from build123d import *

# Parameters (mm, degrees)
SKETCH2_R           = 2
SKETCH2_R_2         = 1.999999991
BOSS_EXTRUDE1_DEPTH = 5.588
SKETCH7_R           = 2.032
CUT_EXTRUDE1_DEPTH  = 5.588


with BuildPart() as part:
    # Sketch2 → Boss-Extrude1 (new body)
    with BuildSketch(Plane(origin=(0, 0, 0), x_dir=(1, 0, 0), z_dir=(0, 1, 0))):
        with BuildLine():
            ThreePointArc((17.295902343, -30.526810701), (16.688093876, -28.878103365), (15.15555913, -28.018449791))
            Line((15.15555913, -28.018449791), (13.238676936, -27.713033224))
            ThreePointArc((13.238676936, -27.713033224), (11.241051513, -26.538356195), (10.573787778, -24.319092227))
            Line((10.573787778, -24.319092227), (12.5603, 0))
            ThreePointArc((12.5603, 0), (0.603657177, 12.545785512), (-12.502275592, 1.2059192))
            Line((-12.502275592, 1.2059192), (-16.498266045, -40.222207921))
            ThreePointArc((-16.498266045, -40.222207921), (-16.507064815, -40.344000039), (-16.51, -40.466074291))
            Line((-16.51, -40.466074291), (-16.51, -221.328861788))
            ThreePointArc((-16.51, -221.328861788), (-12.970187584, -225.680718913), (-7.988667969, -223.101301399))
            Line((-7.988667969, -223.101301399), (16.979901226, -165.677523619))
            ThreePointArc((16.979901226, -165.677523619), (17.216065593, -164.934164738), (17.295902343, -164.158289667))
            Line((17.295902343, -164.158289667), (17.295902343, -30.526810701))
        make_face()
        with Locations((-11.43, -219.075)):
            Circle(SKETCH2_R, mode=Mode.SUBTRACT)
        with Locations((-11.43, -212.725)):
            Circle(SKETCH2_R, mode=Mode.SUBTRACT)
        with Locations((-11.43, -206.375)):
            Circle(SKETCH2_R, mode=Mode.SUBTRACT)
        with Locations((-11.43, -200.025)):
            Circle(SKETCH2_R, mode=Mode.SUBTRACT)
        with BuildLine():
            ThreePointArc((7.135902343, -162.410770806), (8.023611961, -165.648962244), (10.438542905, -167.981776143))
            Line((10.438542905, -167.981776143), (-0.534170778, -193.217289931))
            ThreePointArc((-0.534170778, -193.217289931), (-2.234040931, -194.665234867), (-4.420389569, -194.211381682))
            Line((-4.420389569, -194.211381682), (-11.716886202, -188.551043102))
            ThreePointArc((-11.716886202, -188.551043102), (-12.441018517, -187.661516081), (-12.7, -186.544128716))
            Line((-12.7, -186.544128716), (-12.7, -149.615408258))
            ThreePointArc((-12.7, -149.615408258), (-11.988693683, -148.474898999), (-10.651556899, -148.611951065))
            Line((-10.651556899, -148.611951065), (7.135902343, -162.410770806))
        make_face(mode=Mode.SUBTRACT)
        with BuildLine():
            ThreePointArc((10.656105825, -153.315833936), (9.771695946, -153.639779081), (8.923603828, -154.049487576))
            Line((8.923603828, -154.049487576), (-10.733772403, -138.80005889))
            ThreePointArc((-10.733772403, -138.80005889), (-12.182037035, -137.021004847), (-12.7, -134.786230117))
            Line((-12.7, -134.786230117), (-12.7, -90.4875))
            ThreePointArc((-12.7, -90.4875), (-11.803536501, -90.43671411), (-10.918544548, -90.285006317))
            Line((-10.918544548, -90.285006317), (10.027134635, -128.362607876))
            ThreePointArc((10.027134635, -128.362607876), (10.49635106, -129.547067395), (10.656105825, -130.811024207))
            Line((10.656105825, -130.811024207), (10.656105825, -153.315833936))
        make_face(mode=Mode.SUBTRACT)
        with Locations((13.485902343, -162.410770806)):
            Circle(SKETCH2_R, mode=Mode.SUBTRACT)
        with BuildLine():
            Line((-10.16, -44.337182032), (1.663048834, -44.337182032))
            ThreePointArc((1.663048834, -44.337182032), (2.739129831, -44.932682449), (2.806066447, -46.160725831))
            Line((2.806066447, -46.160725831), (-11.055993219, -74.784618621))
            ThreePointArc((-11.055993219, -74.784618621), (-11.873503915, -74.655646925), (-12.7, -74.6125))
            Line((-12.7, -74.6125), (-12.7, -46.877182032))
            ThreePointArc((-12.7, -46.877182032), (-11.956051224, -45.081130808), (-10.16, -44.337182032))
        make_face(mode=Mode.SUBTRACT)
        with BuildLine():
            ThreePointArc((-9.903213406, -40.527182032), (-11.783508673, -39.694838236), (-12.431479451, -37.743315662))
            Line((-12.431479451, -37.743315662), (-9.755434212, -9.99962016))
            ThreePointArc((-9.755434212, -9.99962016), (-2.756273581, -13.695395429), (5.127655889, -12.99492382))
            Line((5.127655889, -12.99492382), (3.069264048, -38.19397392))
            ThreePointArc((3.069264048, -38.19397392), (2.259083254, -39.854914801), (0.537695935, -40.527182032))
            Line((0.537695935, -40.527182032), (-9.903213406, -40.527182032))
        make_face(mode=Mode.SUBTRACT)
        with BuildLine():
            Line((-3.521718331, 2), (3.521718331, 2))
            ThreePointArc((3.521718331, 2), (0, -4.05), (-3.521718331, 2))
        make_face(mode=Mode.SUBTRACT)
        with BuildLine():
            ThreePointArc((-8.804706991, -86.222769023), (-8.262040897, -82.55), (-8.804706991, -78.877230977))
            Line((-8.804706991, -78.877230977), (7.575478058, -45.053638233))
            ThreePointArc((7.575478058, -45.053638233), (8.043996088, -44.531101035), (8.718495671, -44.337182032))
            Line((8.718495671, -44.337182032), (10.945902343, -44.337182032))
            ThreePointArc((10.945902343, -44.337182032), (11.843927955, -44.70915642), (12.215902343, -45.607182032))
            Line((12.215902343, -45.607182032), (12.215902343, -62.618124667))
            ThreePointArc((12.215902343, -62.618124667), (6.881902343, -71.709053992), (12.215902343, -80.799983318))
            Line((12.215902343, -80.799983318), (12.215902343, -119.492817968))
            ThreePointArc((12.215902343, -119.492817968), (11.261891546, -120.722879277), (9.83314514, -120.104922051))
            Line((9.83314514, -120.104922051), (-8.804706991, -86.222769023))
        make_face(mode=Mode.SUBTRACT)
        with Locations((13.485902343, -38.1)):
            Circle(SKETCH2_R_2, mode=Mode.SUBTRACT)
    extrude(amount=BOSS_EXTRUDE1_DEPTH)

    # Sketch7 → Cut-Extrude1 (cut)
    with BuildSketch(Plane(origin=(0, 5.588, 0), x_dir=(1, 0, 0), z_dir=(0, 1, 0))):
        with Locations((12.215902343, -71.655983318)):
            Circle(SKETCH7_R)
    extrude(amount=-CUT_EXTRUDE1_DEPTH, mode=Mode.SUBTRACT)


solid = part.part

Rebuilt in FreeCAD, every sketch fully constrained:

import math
import FreeCAD as App
import Part
import Sketcher
Q = App.Units.Quantity

doc = App.newDocument("Part")
body = doc.addObject("PartDesign::Body", "Body")

sketch1 = body.newObject("Sketcher::SketchObject", "Sketch")
sketch1.AttachmentSupport = (doc.getObject("XZ_Plane"), [""])
sketch1.MapMode = "FlatFace"
sketch1.addGeometry(Part.ArcOfCircle(Part.Circle(App.Vector(14.76, 30.53, 0), App.Vector(0, 0, 1), 2.54), math.radians(-81), math.radians(0)), False)
sketch1.addGeometry(Part.LineSegment(App.Vector(15.16, 28.02, 0), App.Vector(13.24, 27.71, 0)), False)
sketch1.addGeometry(Part.ArcOfCircle(Part.Circle(App.Vector(13.74, 24.58, 0), App.Vector(0, 0, 1), 3.18), math.radians(99), math.radians(185)), False)
sketch1.addGeometry(Part.LineSegment(App.Vector(10.57, 24.32, 0), App.Vector(12.56, 0, 0)), False)
sketch1.addGeometry(Part.ArcOfCircle(Part.Circle(App.Vector(0, 0, 0), App.Vector(0, 0, 1), 12.56), math.radians(-174), math.radians(0)), False)
sketch1.addGeometry(Part.LineSegment(App.Vector(-12.5, -1.21, 0), App.Vector(-16.5, 40.22, 0)), False)
sketch1.addGeometry(Part.ArcOfCircle(Part.Circle(App.Vector(-13.97, 40.47, 0), App.Vector(0, 0, 1), 2.54), math.radians(-180), math.radians(-174.49)), False)
sketch1.addGeometry(Part.LineSegment(App.Vector(-16.51, 40.47, 0), App.Vector(-16.51, 221.33, 0)), False)
sketch1.addGeometry(Part.ArcOfCircle(Part.Circle(App.Vector(-12.06, 221.33, 0), App.Vector(0, 0, 1), 4.45), math.radians(23), math.radians(180)), False)
sketch1.addGeometry(Part.LineSegment(App.Vector(-7.99, 223.1, 0), App.Vector(16.98, 165.68, 0)), False)
sketch1.addGeometry(Part.ArcOfCircle(Part.Circle(App.Vector(13.49, 164.16, 0), App.Vector(0, 0, 1), 3.81), math.radians(0), math.radians(24)), False)
sketch1.addGeometry(Part.LineSegment(App.Vector(17.3, 164.16, 0), App.Vector(17.3, 30.53, 0)), False)
sketch1.addGeometry(Part.Circle(App.Vector(-11.43, 219.07, 0), App.Vector(0, 0, 1), 2), False)
sketch1.addGeometry(Part.Circle(App.Vector(-11.43, 212.72, 0), App.Vector(0, 0, 1), 2), False)
sketch1.addGeometry(Part.Circle(App.Vector(-11.43, 206.38, 0), App.Vector(0, 0, 1), 2), False)
sketch1.addGeometry(Part.Circle(App.Vector(-11.43, 200.03, 0), App.Vector(0, 0, 1), 2), False)
sketch1.addGeometry(Part.LineSegment(App.Vector(-10.65, 148.61, 0), App.Vector(7.14, 162.41, 0)), False)
sketch1.addGeometry(Part.ArcOfCircle(Part.Circle(App.Vector(13.49, 162.41, 0), App.Vector(0, 0, 1), 6.35), math.radians(119), math.radians(180)), False)
sketch1.addGeometry(Part.LineSegment(App.Vector(10.44, 167.98, 0), App.Vector(-0.53, 193.22, 0)), False)
sketch1.addGeometry(Part.ArcOfCircle(Part.Circle(App.Vector(-2.86, 192.2, 0), App.Vector(0, 0, 1), 2.54), math.radians(24), math.radians(128)), False)
sketch1.addGeometry(Part.LineSegment(App.Vector(-4.42, 194.21, 0), App.Vector(-11.72, 188.55, 0)), False)
sketch1.addGeometry(Part.ArcOfCircle(Part.Circle(App.Vector(-10.16, 186.54, 0), App.Vector(0, 0, 1), 2.54), math.radians(128), math.radians(180)), False)
sketch1.addGeometry(Part.LineSegment(App.Vector(-12.7, 186.54, 0), App.Vector(-12.7, 149.62, 0)), False)
sketch1.addGeometry(Part.ArcOfCircle(Part.Circle(App.Vector(-11.43, 149.62, 0), App.Vector(0, 0, 1), 1.27), math.radians(180), math.radians(308)), False)
sketch1.addGeometry(Part.LineSegment(App.Vector(10.66, 130.81, 0), App.Vector(10.66, 153.32, 0)), False)
sketch1.addGeometry(Part.ArcOfCircle(Part.Circle(App.Vector(13.49, 162.41, 0), App.Vector(0, 0, 1), 9.52), math.radians(-118.62), math.radians(-107.28)), False)
sketch1.addGeometry(Part.LineSegment(App.Vector(8.92, 154.05, 0), App.Vector(-10.73, 138.8, 0)), False)
sketch1.addGeometry(Part.ArcOfCircle(Part.Circle(App.Vector(-7.62, 134.79, 0), App.Vector(0, 0, 1), 5.08), math.radians(128), math.radians(180)), False)
sketch1.addGeometry(Part.LineSegment(App.Vector(-12.7, 134.79, 0), App.Vector(-12.7, 90.49, 0)), False)
sketch1.addGeometry(Part.ArcOfCircle(Part.Circle(App.Vector(-12.7, 82.55, 0), App.Vector(0, 0, 1), 7.94), math.radians(77.03), math.radians(90)), False)
sketch1.addGeometry(Part.LineSegment(App.Vector(-10.92, 90.29, 0), App.Vector(10.03, 128.36, 0)), False)
sketch1.addGeometry(Part.ArcOfCircle(Part.Circle(App.Vector(5.58, 130.81, 0), App.Vector(0, 0, 1), 5.08), math.radians(-29), math.radians(0)), False)
sketch1.addGeometry(Part.Circle(App.Vector(13.49, 162.41, 0), App.Vector(0, 0, 1), 2), False)
sketch1.addGeometry(Part.ArcOfCircle(Part.Circle(App.Vector(-10.16, 46.88, 0), App.Vector(0, 0, 1), 2.54), math.radians(-180), math.radians(-90)), False)
sketch1.addGeometry(Part.LineSegment(App.Vector(-10.16, 44.34, 0), App.Vector(1.66, 44.34, 0)), False)
sketch1.addGeometry(Part.ArcOfCircle(Part.Circle(App.Vector(1.66, 45.61, 0), App.Vector(0, 0, 1), 1.27), math.radians(-90), math.radians(26)), False)
sketch1.addGeometry(Part.LineSegment(App.Vector(2.81, 46.16, 0), App.Vector(-11.06, 74.78, 0)), False)
sketch1.addGeometry(Part.ArcOfCircle(Part.Circle(App.Vector(-12.7, 82.55, 0), App.Vector(0, 0, 1), 7.94), math.radians(-90), math.radians(-78.05)), False)
sketch1.addGeometry(Part.LineSegment(App.Vector(-12.7, 74.61, 0), App.Vector(-12.7, 46.88, 0)), False)
sketch1.addGeometry(Part.LineSegment(App.Vector(0.54, 40.53, 0), App.Vector(-9.9, 40.53, 0)), False)
sketch1.addGeometry(Part.ArcOfCircle(Part.Circle(App.Vector(-9.9, 37.99, 0), App.Vector(0, 0, 1), 2.54), math.radians(90), math.radians(186)), False)
sketch1.addGeometry(Part.LineSegment(App.Vector(-12.43, 37.74, 0), App.Vector(-9.76, 10, 0)), False)
sketch1.addGeometry(Part.ArcOfCircle(Part.Circle(App.Vector(0, 0, 0), App.Vector(0, 0, 1), 13.97), math.radians(68), math.radians(134)), False)
sketch1.addGeometry(Part.LineSegment(App.Vector(5.13, 12.99, 0), App.Vector(3.07, 38.19, 0)), False)
sketch1.addGeometry(Part.ArcOfCircle(Part.Circle(App.Vector(0.54, 37.99, 0), App.Vector(0, 0, 1), 2.54), math.radians(5), math.radians(90)), False)
sketch1.addGeometry(Part.ArcOfCircle(Part.Circle(App.Vector(0, 0, 0), App.Vector(0, 0, 1), 4.05), math.radians(-30), math.radians(210)), False)
sketch1.addGeometry(Part.LineSegment(App.Vector(-3.52, -2, 0), App.Vector(3.52, -2, 0)), False)
sketch1.addGeometry(Part.LineSegment(App.Vector(9.83, 120.1, 0), App.Vector(-8.8, 86.22, 0)), False)
sketch1.addGeometry(Part.ArcOfCircle(Part.Circle(App.Vector(-20.96, 82.55, 0), App.Vector(0, 0, 1), 12.7), math.radians(-17), math.radians(17)), False)
sketch1.addGeometry(Part.LineSegment(App.Vector(-8.8, 78.88, 0), App.Vector(7.58, 45.05, 0)), False)
sketch1.addGeometry(Part.ArcOfCircle(Part.Circle(App.Vector(8.72, 45.61, 0), App.Vector(0, 0, 1), 1.27), math.radians(-154), math.radians(-90)), False)
sketch1.addGeometry(Part.LineSegment(App.Vector(8.72, 44.34, 0), App.Vector(10.95, 44.34, 0)), False)
sketch1.addGeometry(Part.ArcOfCircle(Part.Circle(App.Vector(10.95, 45.61, 0), App.Vector(0, 0, 1), 1.27), math.radians(-90), math.radians(0)), False)
sketch1.addGeometry(Part.LineSegment(App.Vector(12.22, 45.61, 0), App.Vector(12.22, 62.62, 0)), False)
sketch1.addGeometry(Part.ArcOfCircle(Part.Circle(App.Vector(17.3, 71.71, 0), App.Vector(0, 0, 1), 10.41), math.radians(119), math.radians(241)), False)
sketch1.addGeometry(Part.LineSegment(App.Vector(12.22, 80.8, 0), App.Vector(12.22, 119.49, 0)), False)
sketch1.addGeometry(Part.ArcOfCircle(Part.Circle(App.Vector(10.95, 119.49, 0), App.Vector(0, 0, 1), 1.27), math.radians(0), math.radians(151)), False)
sketch1.addGeometry(Part.Circle(App.Vector(13.49, 38.1, 0), App.Vector(0, 0, 1), 2), False)
sketch1.addConstraint(Sketcher.Constraint("Tangent", 0, 1, 1, 1))
sketch1.addConstraint(Sketcher.Constraint("Tangent", 1, 2, 2, 1))
sketch1.addConstraint(Sketcher.Constraint("Tangent", 2, 2, 3, 1))
sketch1.addConstraint(Sketcher.Constraint("Coincident", 3, 2, 4, 2))
sketch1.addConstraint(Sketcher.Constraint("Tangent", 4, 1, 5, 1))
sketch1.addConstraint(Sketcher.Constraint("Tangent", 5, 2, 6, 2))
sketch1.addConstraint(Sketcher.Constraint("Tangent", 6, 1, 7, 1))
sketch1.addConstraint(Sketcher.Constraint("Tangent", 7, 2, 8, 2))
sketch1.addConstraint(Sketcher.Constraint("Tangent", 8, 1, 9, 1))
sketch1.addConstraint(Sketcher.Constraint("Tangent", 9, 2, 10, 2))
sketch1.addConstraint(Sketcher.Constraint("Tangent", 10, 1, 11, 1))
sketch1.addConstraint(Sketcher.Constraint("Tangent", 11, 2, 0, 2))
sketch1.addConstraint(Sketcher.Constraint("Coincident", 16, 2, 17, 2))
sketch1.addConstraint(Sketcher.Constraint("Coincident", 17, 1, 18, 1))
sketch1.addConstraint(Sketcher.Constraint("Tangent", 18, 2, 19, 1))
sketch1.addConstraint(Sketcher.Constraint("Tangent", 19, 2, 20, 1))
sketch1.addConstraint(Sketcher.Constraint("Tangent", 20, 2, 21, 1))
sketch1.addConstraint(Sketcher.Constraint("Tangent", 21, 2, 22, 1))
sketch1.addConstraint(Sketcher.Constraint("Tangent", 22, 2, 23, 1))
sketch1.addConstraint(Sketcher.Constraint("Tangent", 23, 2, 16, 1))
sketch1.addConstraint(Sketcher.Constraint("Coincident", 24, 2, 25, 2))
sketch1.addConstraint(Sketcher.Constraint("Coincident", 25, 1, 26, 1))
sketch1.addConstraint(Sketcher.Constraint("Tangent", 26, 2, 27, 1))
sketch1.addConstraint(Sketcher.Constraint("Tangent", 27, 2, 28, 1))
sketch1.addConstraint(Sketcher.Constraint("Coincident", 28, 2, 29, 2))
sketch1.addConstraint(Sketcher.Constraint("Coincident", 29, 1, 30, 1))
sketch1.addConstraint(Sketcher.Constraint("Tangent", 30, 2, 31, 1))
sketch1.addConstraint(Sketcher.Constraint("Tangent", 31, 2, 24, 1))
sketch1.addConstraint(Sketcher.Constraint("Tangent", 33, 2, 34, 1))
sketch1.addConstraint(Sketcher.Constraint("Tangent", 34, 2, 35, 1))
sketch1.addConstraint(Sketcher.Constraint("Tangent", 35, 2, 36, 1))
sketch1.addConstraint(Sketcher.Constraint("Coincident", 36, 2, 37, 2))
sketch1.addConstraint(Sketcher.Constraint("Coincident", 37, 1, 38, 1))
sketch1.addConstraint(Sketcher.Constraint("Tangent", 38, 2, 33, 1))
sketch1.addConstraint(Sketcher.Constraint("Tangent", 39, 2, 40, 1))
sketch1.addConstraint(Sketcher.Constraint("Tangent", 40, 2, 41, 1))
sketch1.addConstraint(Sketcher.Constraint("Coincident", 41, 2, 42, 2))
sketch1.addConstraint(Sketcher.Constraint("Coincident", 42, 1, 43, 1))
sketch1.addConstraint(Sketcher.Constraint("Tangent", 43, 2, 44, 1))
sketch1.addConstraint(Sketcher.Constraint("Tangent", 44, 2, 39, 1))
sketch1.addConstraint(Sketcher.Constraint("Coincident", 45, 1, 46, 2))
sketch1.addConstraint(Sketcher.Constraint("Coincident", 46, 1, 45, 2))
sketch1.addConstraint(Sketcher.Constraint("Coincident", 47, 2, 48, 2))
sketch1.addConstraint(Sketcher.Constraint("Coincident", 48, 1, 49, 1))
sketch1.addConstraint(Sketcher.Constraint("Tangent", 49, 2, 50, 1))
sketch1.addConstraint(Sketcher.Constraint("Tangent", 50, 2, 51, 1))
sketch1.addConstraint(Sketcher.Constraint("Tangent", 51, 2, 52, 1))
sketch1.addConstraint(Sketcher.Constraint("Tangent", 52, 2, 53, 1))
sketch1.addConstraint(Sketcher.Constraint("Coincident", 53, 2, 54, 2))
sketch1.addConstraint(Sketcher.Constraint("Coincident", 54, 1, 55, 1))
sketch1.addConstraint(Sketcher.Constraint("Tangent", 55, 2, 56, 1))
sketch1.addConstraint(Sketcher.Constraint("Tangent", 56, 2, 47, 1))
sketch1.addConstraint(Sketcher.Constraint("Vertical", 7))
sketch1.addConstraint(Sketcher.Constraint("Vertical", 11))
sketch1.addConstraint(Sketcher.Constraint("Vertical", 22))
sketch1.addConstraint(Sketcher.Constraint("Vertical", 24))
sketch1.addConstraint(Sketcher.Constraint("Vertical", 28))
sketch1.addConstraint(Sketcher.Constraint("Horizontal", 34))
sketch1.addConstraint(Sketcher.Constraint("Vertical", 38))
sketch1.addConstraint(Sketcher.Constraint("Horizontal", 39))
sketch1.addConstraint(Sketcher.Constraint("Horizontal", 46))
sketch1.addConstraint(Sketcher.Constraint("Horizontal", 51))
sketch1.addConstraint(Sketcher.Constraint("Vertical", 53))
sketch1.addConstraint(Sketcher.Constraint("Vertical", 55))
sketch1.addConstraint(Sketcher.Constraint("Coincident", 4, 3, -1, 1))
sketch1.addConstraint(Sketcher.Constraint("Coincident", 42, 3, -1, 1))
sketch1.addConstraint(Sketcher.Constraint("Coincident", 45, 3, -1, 1))
sketch1.addConstraint(Sketcher.Constraint("Coincident", 25, 3, 17, 3))
sketch1.addConstraint(Sketcher.Constraint("Coincident", 32, 3, 17, 3))
sketch1.addConstraint(Sketcher.Constraint("Coincident", 37, 3, 29, 3))
sketch1.addConstraint(Sketcher.Constraint("Equal", 0, 6))
sketch1.addConstraint(Sketcher.Constraint("Equal", 12, 13))
sketch1.addConstraint(Sketcher.Constraint("Equal", 13, 14))
sketch1.addConstraint(Sketcher.Constraint("Equal", 14, 15))
sketch1.addConstraint(Sketcher.Constraint("Equal", 6, 19))
sketch1.addConstraint(Sketcher.Constraint("Equal", 19, 21))
sketch1.addConstraint(Sketcher.Constraint("Equal", 27, 31))
sketch1.addConstraint(Sketcher.Constraint("Equal", 15, 32))
sketch1.addConstraint(Sketcher.Constraint("Equal", 21, 33))
sketch1.addConstraint(Sketcher.Constraint("Equal", 23, 35))
sketch1.addConstraint(Sketcher.Constraint("Equal", 29, 37))
sketch1.addConstraint(Sketcher.Constraint("Equal", 33, 40))
sketch1.addConstraint(Sketcher.Constraint("Equal", 40, 44))
sketch1.addConstraint(Sketcher.Constraint("Equal", 35, 50))
sketch1.addConstraint(Sketcher.Constraint("Equal", 50, 52))
sketch1.addConstraint(Sketcher.Constraint("Equal", 52, 56))
sketch1.addConstraint(Sketcher.Constraint("Equal", 32, 57))
sketch1.addConstraint(Sketcher.Constraint("PointOnObject", 3, 2, -1))
sketch1.addConstraint(Sketcher.Constraint("Parallel", 9, 18))
sketch1.addConstraint(Sketcher.Constraint("Parallel", 16, 20))
sketch1.addConstraint(Sketcher.Constraint("Parallel", 20, 26))
sketch1.addConstraint(Sketcher.Constraint("Parallel", 5, 41))
sketch1.addConstraint(Sketcher.Constraint("Parallel", 3, 43))
sketch1.addConstraint(Sketcher.Constraint("Parallel", 30, 47))
sketch1.addConstraint(Sketcher.Constraint("Parallel", 36, 49))
sketch1.addConstraint(Sketcher.Constraint("Horizontal", 37, 3, 48, 3))
sketch1.addConstraint(Sketcher.Constraint("Horizontal", 35, 3, 50, 3))
sketch1.addConstraint(Sketcher.Constraint("Horizontal", 32, 3, 16, 2))
sketch1.addConstraint(Sketcher.Constraint("Vertical", 12, 3, 13, 3))
sketch1.addConstraint(Sketcher.Constraint("Vertical", 13, 3, 14, 3))
sketch1.addConstraint(Sketcher.Constraint("Vertical", 14, 3, 15, 3))
sketch1.addConstraint(Sketcher.Constraint("Vertical", 10, 3, 17, 3))
sketch1.addConstraint(Sketcher.Constraint("Vertical", 15, 3, 23, 3))
sketch1.addConstraint(Sketcher.Constraint("Vertical", 21, 3, 33, 3))
sketch1.addConstraint(Sketcher.Constraint("Vertical", 52, 3, 56, 3))
sketch1.addConstraint(Sketcher.Constraint("Vertical", 32, 3, 57, 3))
sketch1.addConstraint(Sketcher.Constraint("Vertical", 54, 3, 10, 1))
sketch1.addConstraint(Sketcher.Constraint("Vertical", 37, 3, 21, 2))
sketch1.addConstraint(Sketcher.Constraint("Vertical", 22, 2, 27, 2))
sketch1.addConstraint(Sketcher.Constraint("Vertical", 47, 2, 48, 1))
sketch1.addConstraint(Sketcher.Constraint("Radius", 0, Q("0.1 in")))
sketch1.addConstraint(Sketcher.Constraint("Radius", 27, Q("0.2 in")))
sketch1.addConstraint(Sketcher.Constraint("Radius", 48, Q("0.5 in")))
sketch1.addConstraint(Sketcher.Constraint("Radius", 10, Q("0.15 in")))
sketch1.addConstraint(Sketcher.Constraint("Radius", 17, Q("0.25 in")))
sketch1.addConstraint(Sketcher.Constraint("Radius", 23, Q("0.05 in")))
sketch1.addConstraint(Sketcher.Constraint("Radius", 42, Q("0.55 in")))
sketch1.addConstraint(Sketcher.Constraint("Radius", 54, Q("0.41 in")))
sketch1.addConstraint(Sketcher.Constraint("Radius", 2, Q("0.125 in")))
sketch1.addConstraint(Sketcher.Constraint("Radius", 8, Q("0.175 in")))
sketch1.addConstraint(Sketcher.Constraint("Radius", 25, Q("0.375 in")))
sketch1.addConstraint(Sketcher.Constraint("Radius", 29, Q("0.3125 in")))
sketch1.addConstraint(Sketcher.Constraint("DistanceX", 21, 3, -1, 1, Q("0.4 in")))
sketch1.addConstraint(Sketcher.Constraint("DistanceY", -1, 1, 57, 3, Q("1.5 in")))
sketch1.addConstraint(Sketcher.Constraint("Angle", 9, Q("-66.5 deg")))
sketch1.addConstraint(Sketcher.Constraint("Radius", 4, Q("0.4945 in")))
sketch1.addConstraint(Sketcher.Constraint("Diameter", 12, 4.0))
sketch1.addConstraint(Sketcher.Constraint("DistanceX", 6, 3, -1, 1, Q("0.55 in")))
sketch1.addConstraint(Sketcher.Constraint("DistanceY", -1, 1, 29, 3, Q("3.25 in")))
sketch1.addConstraint(Sketcher.Constraint("Radius", 45, 4.05))
sketch1.addConstraint(Sketcher.Constraint("DistanceY", -1, 1, 12, 3, Q("8.625 in")))
sketch1.addConstraint(Sketcher.Constraint("DistanceY", -1, 1, 13, 3, Q("8.375 in")))
sketch1.addConstraint(Sketcher.Constraint("DistanceY", -1, 1, 14, 3, Q("8.125 in")))
sketch1.addConstraint(Sketcher.Constraint("DistanceY", -1, 1, 15, 3, Q("7.875 in")))
sketch1.addConstraint(Sketcher.Constraint("DistanceX", -1, 1, 9, 2, Q("0.6685 in")))
sketch1.addConstraint(Sketcher.Constraint("Distance", 5, 41.6204))
sketch1.addConstraint(Sketcher.Constraint("DistanceX", 34, 1, 34, 2, 11.823049))
sketch1.addConstraint(Sketcher.Constraint("DistanceX", 39, 2, 39, 1, 10.440909))
sketch1.addConstraint(Sketcher.Constraint("DistanceY", 11, 2, 11, 1, 133.631479))
sketch1.addConstraint(Sketcher.Constraint("DistanceY", 22, 2, 22, 1, 36.92872))
sketch1.addConstraint(Sketcher.Constraint("DistanceY", 24, 1, 24, 2, 22.50481))
sketch1.addConstraint(Sketcher.Constraint("DistanceY", 28, 2, 28, 1, 44.29873))
sketch1.addConstraint(Sketcher.Constraint("DistanceY", -1, 1, 8, 1, 223.101301))
sketch1.addConstraint(Sketcher.Constraint("DistanceY", 45, 1, -1, 1, 2.0))
sketch1.addConstraint(Sketcher.Constraint("Distance", 1, 1.941061))
sketch1.addConstraint(Sketcher.Constraint("Distance", 3, 24.400092))
sketch1.addConstraint(Sketcher.Constraint("Distance", 18, 27.517842))
sketch1.addConstraint(Sketcher.Constraint("Distance", 43, 25.28298))
sketch1.addConstraint(Sketcher.Constraint("Distance", 47, 38.670012))
sketch1.addConstraint(Sketcher.Constraint("Distance", 49, 37.581191))
sketch1.addConstraint(Sketcher.Constraint("DistanceX", 51, 1, 51, 2, 2.227407))
sketch1.addConstraint(Sketcher.Constraint("DistanceY", 38, 2, 38, 1, 27.735318))
sketch1.addConstraint(Sketcher.Constraint("DistanceY", 53, 1, 53, 2, 17.010943))
sketch1.addConstraint(Sketcher.Constraint("DistanceY", 55, 1, 55, 2, 38.692835))
sketch1.addConstraint(Sketcher.Constraint("DistanceY", -1, 1, 17, 3, 162.410771))
sketch1.addConstraint(Sketcher.Constraint("DistanceY", -1, 1, 21, 3, 186.544129))
sketch1.addConstraint(Sketcher.Constraint("DistanceX", 48, 3, -1, 1, 20.962041))
sketch1.addConstraint(Sketcher.Constraint("DistanceX", 40, 2, -1, 1, 12.431479))
sketch1.addConstraint(Sketcher.Constraint("Distance", 30, 43.458316))
pad1 = body.newObject("PartDesign::Pad", "Pad")
pad1.Profile = sketch1
pad1.Length = Q("0.22 in")
pad1.Reversed = True

sketch2 = body.newObject("Sketcher::SketchObject", "Sketch001")
sketch2.AttachmentSupport = (doc.getObject("XZ_Plane"), [""])
sketch2.MapMode = "FlatFace"
sketch2.AttachmentOffset = App.Placement(App.Vector(0, 0, -0.22 * 25.4), App.Rotation())
sketch2.addGeometry(Part.Circle(App.Vector(12.2, 71.7, 0), App.Vector(0, 0, 1), 2), False)
sketch2.addConstraint(Sketcher.Constraint("Diameter", 0, Q("0.16 in")))
sketch2.addConstraint(Sketcher.Constraint("DistanceX", -1, 1, 0, 3, 12.215902))
sketch2.addConstraint(Sketcher.Constraint("DistanceY", -1, 1, 0, 3, 71.655983))
pocket1 = body.newObject("PartDesign::Pocket", "Pocket")
pocket1.Profile = sketch2
pocket1.Length = Q("0.22 in")
pocket1.Reversed = True

doc.recompute()
